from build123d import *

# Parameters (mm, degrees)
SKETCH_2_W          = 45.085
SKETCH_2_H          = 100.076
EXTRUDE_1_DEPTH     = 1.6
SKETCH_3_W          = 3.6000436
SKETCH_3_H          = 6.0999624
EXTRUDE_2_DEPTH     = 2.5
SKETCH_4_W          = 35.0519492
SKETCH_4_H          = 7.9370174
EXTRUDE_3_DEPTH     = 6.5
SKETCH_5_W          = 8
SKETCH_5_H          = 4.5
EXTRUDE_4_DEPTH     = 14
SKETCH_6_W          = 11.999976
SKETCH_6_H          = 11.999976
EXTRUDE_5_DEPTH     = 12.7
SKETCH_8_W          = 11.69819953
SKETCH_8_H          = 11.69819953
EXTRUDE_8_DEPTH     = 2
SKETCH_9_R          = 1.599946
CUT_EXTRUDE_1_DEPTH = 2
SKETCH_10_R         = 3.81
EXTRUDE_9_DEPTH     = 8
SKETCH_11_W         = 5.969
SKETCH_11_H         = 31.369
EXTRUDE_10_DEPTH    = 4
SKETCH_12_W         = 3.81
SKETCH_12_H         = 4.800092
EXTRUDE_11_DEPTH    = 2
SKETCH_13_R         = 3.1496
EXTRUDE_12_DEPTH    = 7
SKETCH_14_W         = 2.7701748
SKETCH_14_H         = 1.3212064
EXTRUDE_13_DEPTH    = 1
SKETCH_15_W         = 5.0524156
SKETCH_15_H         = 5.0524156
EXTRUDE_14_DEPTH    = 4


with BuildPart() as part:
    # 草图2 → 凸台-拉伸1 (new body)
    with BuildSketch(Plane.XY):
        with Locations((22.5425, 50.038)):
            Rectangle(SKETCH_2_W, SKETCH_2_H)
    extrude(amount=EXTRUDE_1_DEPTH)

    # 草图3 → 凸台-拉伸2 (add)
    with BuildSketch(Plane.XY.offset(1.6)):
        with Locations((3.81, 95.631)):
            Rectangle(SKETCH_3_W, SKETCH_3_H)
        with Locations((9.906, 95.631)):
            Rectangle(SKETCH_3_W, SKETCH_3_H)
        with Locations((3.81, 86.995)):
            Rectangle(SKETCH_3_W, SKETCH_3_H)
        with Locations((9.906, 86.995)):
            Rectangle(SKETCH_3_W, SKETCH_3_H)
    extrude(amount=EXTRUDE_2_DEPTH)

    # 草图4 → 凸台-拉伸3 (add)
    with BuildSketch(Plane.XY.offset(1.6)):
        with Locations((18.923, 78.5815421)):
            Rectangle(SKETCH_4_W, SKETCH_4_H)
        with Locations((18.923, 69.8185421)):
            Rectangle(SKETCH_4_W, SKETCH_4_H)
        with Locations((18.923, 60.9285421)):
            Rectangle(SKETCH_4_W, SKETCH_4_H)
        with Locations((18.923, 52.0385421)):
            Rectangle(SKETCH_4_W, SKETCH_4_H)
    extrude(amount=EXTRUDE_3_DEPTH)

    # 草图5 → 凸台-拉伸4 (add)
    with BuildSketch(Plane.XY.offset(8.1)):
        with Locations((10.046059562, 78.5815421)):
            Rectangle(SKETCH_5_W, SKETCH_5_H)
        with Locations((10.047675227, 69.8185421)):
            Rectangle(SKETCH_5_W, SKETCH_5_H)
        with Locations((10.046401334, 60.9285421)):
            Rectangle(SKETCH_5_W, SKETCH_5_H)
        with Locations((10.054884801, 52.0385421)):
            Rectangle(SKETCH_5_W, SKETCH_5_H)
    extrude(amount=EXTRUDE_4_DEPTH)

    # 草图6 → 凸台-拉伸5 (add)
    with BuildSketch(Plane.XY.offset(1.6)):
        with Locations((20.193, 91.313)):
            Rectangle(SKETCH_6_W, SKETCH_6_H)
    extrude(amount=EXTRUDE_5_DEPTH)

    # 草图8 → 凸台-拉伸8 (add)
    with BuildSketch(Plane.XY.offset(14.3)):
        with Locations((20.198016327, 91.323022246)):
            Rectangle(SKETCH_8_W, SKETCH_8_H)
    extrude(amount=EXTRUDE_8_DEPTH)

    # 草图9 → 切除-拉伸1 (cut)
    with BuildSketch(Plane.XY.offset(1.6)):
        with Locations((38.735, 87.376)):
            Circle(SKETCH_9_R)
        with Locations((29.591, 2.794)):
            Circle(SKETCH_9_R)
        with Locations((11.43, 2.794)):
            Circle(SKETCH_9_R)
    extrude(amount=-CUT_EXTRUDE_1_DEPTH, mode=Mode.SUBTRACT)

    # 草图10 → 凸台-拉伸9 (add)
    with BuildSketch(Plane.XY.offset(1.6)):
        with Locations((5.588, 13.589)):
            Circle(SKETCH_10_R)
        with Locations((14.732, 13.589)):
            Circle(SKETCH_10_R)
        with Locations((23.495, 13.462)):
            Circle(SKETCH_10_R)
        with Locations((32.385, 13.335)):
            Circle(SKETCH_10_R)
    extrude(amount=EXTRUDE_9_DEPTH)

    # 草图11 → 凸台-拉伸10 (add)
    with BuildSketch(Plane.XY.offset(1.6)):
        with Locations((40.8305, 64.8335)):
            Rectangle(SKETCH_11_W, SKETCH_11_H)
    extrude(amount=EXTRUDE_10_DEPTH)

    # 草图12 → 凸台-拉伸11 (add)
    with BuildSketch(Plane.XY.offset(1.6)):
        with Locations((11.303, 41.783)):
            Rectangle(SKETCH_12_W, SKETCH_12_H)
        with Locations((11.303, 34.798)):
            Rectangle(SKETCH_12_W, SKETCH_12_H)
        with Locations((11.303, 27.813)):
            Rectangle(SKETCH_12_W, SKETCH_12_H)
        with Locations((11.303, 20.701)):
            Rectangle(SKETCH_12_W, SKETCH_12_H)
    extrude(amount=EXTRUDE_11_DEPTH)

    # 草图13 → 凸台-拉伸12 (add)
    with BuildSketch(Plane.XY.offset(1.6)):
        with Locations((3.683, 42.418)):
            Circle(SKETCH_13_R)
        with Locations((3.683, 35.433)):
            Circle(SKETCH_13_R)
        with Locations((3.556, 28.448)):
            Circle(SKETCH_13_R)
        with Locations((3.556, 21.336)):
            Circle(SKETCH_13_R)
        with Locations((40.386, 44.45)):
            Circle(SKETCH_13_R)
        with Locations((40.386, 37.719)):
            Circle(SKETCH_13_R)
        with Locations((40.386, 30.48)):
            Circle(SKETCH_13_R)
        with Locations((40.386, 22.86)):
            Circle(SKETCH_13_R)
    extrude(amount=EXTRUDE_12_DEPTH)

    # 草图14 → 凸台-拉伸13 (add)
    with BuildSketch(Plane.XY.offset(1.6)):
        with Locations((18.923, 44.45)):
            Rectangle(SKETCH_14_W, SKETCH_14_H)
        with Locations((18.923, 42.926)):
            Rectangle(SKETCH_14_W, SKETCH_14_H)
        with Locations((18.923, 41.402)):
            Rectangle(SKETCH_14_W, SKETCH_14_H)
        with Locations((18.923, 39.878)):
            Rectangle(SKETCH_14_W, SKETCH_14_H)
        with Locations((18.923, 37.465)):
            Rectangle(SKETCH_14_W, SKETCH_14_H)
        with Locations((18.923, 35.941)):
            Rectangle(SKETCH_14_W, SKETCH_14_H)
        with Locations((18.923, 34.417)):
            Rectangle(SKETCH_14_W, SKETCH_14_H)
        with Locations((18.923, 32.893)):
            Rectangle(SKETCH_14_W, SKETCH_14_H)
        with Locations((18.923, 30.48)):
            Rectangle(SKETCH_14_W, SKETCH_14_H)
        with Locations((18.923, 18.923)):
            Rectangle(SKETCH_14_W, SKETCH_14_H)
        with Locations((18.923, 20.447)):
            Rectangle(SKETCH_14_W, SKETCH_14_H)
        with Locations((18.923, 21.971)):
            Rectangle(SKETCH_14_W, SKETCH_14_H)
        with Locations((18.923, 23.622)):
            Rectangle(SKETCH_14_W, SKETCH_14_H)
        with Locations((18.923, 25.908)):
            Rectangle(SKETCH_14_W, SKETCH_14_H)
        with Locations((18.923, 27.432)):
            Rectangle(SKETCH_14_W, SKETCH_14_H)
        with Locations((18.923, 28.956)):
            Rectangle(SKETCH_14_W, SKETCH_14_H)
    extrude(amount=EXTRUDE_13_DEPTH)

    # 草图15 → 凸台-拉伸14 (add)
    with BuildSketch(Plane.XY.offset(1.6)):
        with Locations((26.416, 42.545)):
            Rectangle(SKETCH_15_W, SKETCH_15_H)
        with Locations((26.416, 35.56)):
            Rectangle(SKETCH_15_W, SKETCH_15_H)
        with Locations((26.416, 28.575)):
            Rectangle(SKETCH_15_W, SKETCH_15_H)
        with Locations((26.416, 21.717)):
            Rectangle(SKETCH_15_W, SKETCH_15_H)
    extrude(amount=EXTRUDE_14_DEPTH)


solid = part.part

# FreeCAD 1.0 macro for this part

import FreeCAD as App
import Part
import Sketcher
from FreeCAD import Vector
Q = App.Units.Quantity

doc = App.newDocument("Part")
body = doc.addObject("PartDesign::Body", "Body")

sketch1 = body.newObject("Sketcher::SketchObject", "Sketch")
sketch1.AttachmentSupport = (doc.getObject("XY_Plane"), [""])
sketch1.MapMode = "FlatFace"
sketch1.addGeometry([
    Part.LineSegment(Vector(0, 100, 0), Vector(0, 0, 0)),
    Part.LineSegment(Vector(0, 0, 0), Vector(45, 0, 0)),
    Part.LineSegment(Vector(45, 0, 0), Vector(45, 100, 0)),
    Part.LineSegment(Vector(45, 100, 0), Vector(0, 100, 0)),
], False)
sketch1.addConstraint([
    Sketcher.Constraint("Coincident", 0, 2, 1, 1),
    Sketcher.Constraint("Coincident", 1, 2, 2, 1),
    Sketcher.Constraint("Coincident", 2, 2, 3, 1),
    Sketcher.Constraint("Coincident", 3, 2, 0, 1),
    Sketcher.Constraint("Vertical", 0),
    Sketcher.Constraint("Horizontal", 1),
    Sketcher.Constraint("Vertical", 2),
    Sketcher.Constraint("Horizontal", 3),
    Sketcher.Constraint("Coincident", 0, 2, -1, 1),
    Sketcher.Constraint("DistanceX", 1, 1, 1, 2, Q("45.085 mm")),
    Sketcher.Constraint("DistanceY", 0, 2, 0, 1, Q("100.076 mm")),
])
pad1 = body.newObject("PartDesign::Pad", "Pad")
pad1.Profile = sketch1
pad1.Length = 1.6

sketch2 = body.newObject("Sketcher::SketchObject", "Sketch001")
sketch2.AttachmentSupport = (doc.getObject("XY_Plane"), [""])
sketch2.MapMode = "FlatFace"
sketch2.AttachmentOffset = App.Placement(Vector(0, 0, 1.6), App.Rotation())
sketch2.addGeometry([
    Part.LineSegment(Vector(2, 98.7, 0), Vector(2, 92.6, 0)),
    Part.LineSegment(Vector(2, 92.6, 0), Vector(5.6, 92.6, 0)),
    Part.LineSegment(Vector(5.6, 92.6, 0), Vector(5.6, 98.7, 0)),
    Part.LineSegment(Vector(5.6, 98.7, 0), Vector(2, 98.7, 0)),
    Part.LineSegment(Vector(8.1, 98.7, 0), Vector(8.1, 92.6, 0)),
    Part.LineSegment(Vector(8.1, 92.6, 0), Vector(11.7, 92.6, 0)),
    Part.LineSegment(Vector(11.7, 92.6, 0), Vector(11.7, 98.7, 0)),
    Part.LineSegment(Vector(11.7, 98.7, 0), Vector(8.1, 98.7, 0)),
    Part.LineSegment(Vector(2, 90, 0), Vector(2, 83.9, 0)),
    Part.LineSegment(Vector(2, 83.9, 0), Vector(5.6, 83.9, 0)),
    Part.LineSegment(Vector(5.6, 83.9, 0), Vector(5.6, 90, 0)),
    Part.LineSegment(Vector(5.6, 90, 0), Vector(2, 90, 0)),
    Part.LineSegment(Vector(8.1, 90, 0), Vector(8.1, 83.9, 0)),
    Part.LineSegment(Vector(8.1, 83.9, 0), Vector(11.7, 83.9, 0)),
    Part.LineSegment(Vector(11.7, 83.9, 0), Vector(11.7, 90, 0)),
    Part.LineSegment(Vector(11.7, 90, 0), Vector(8.1, 90, 0)),
], False)
sketch2.addConstraint([
    Sketcher.Constraint("Coincident", 0, 2, 1, 1),
    Sketcher.Constraint("Coincident", 1, 2, 2, 1),
    Sketcher.Constraint("Coincident", 2, 2, 3, 1),
    Sketcher.Constraint("Coincident", 3, 2, 0, 1),
    Sketcher.Constraint("Coincident", 4, 2, 5, 1),
    Sketcher.Constraint("Coincident", 5, 2, 6, 1),
    Sketcher.Constraint("Coincident", 6, 2, 7, 1),
    Sketcher.Constraint("Coincident", 7, 2, 4, 1),
    Sketcher.Constraint("Coincident", 8, 2, 9, 1),
    Sketcher.Constraint("Coincident", 9, 2, 10, 1),
    Sketcher.Constraint("Coincident", 10, 2, 11, 1),
    Sketcher.Constraint("Coincident", 11, 2, 8, 1),
    Sketcher.Constraint("Coincident", 12, 2, 13, 1),
    Sketcher.Constraint("Coincident", 13, 2, 14, 1),
    Sketcher.Constraint("Coincident", 14, 2, 15, 1),
    Sketcher.Constraint("Coincident", 15, 2, 12, 1),
    Sketcher.Constraint("Vertical", 0),
    Sketcher.Constraint("Horizontal", 1),
    Sketcher.Constraint("Vertical", 2),
    Sketcher.Constraint("Horizontal", 3),
    Sketcher.Constraint("Vertical", 4),
    Sketcher.Constraint("Horizontal", 5),
    Sketcher.Constraint("Vertical", 6),
    Sketcher.Constraint("Horizontal", 7),
    Sketcher.Constraint("Vertical", 8),
    Sketcher.Constraint("Horizontal", 9),
    Sketcher.Constraint("Vertical", 10),
    Sketcher.Constraint("Horizontal", 11),
    Sketcher.Constraint("Vertical", 12),
    Sketcher.Constraint("Horizontal", 13),
    Sketcher.Constraint("Vertical", 14),
    Sketcher.Constraint("Horizontal", 15),
    Sketcher.Constraint("Horizontal", 1, 2, 4, 2),
    Sketcher.Constraint("Horizontal", 3, 2, 6, 2),
    Sketcher.Constraint("Horizontal", 9, 2, 12, 2),
    Sketcher.Constraint("Horizontal", 11, 2, 14, 2),
    Sketcher.Constraint("Vertical", 3, 2, 8, 2),
    Sketcher.Constraint("Vertical", 2, 2, 9, 2),
    Sketcher.Constraint("Vertical", 7, 2, 12, 2),
    Sketcher.Constraint("Vertical", 6, 2, 13, 2),
    Sketcher.Constraint("Equal", 3, 5),
    Sketcher.Constraint("Equal", 6, 8),
    Sketcher.Constraint("DistanceX", 0, 2, 4, 2, Q("6.096 mm")),
    Sketcher.Constraint("DistanceY", 8, 2, 0, 2, Q("8.636 mm")),
    Sketcher.Constraint("DistanceX", 1, 1, 1, 2, Q("3.600044 mm")),
    Sketcher.Constraint("DistanceY", 0, 2, 0, 1, Q("6.099962 mm")),
    Sketcher.Constraint("DistanceX", -1, 1, 0, 2, Q("2.009978 mm")),
    Sketcher.Constraint("DistanceY", -1, 1, 0, 2, Q("92.581019 mm")),
])
pad2 = body.newObject("PartDesign::Pad", "Pad001")
pad2.Profile = sketch2
pad2.Length = 2.5

sketch3 = body.newObject("Sketcher::SketchObject", "Sketch002")
sketch3.AttachmentSupport = (doc.getObject("XY_Plane"), [""])
sketch3.MapMode = "FlatFace"
sketch3.AttachmentOffset = App.Placement(Vector(0, 0, 1.6), App.Rotation())
sketch3.addGeometry([
    Part.LineSegment(Vector(1, 83, 0), Vector(1, 75, 0)),
    Part.LineSegment(Vector(1, 75, 0), Vector(36, 75, 0)),
    Part.LineSegment(Vector(36, 75, 0), Vector(36, 83, 0)),
    Part.LineSegment(Vector(36, 83, 0), Vector(1, 83, 0)),
    Part.LineSegment(Vector(1, 74, 0), Vector(1, 66, 0)),
    Part.LineSegment(Vector(1, 66, 0), Vector(36, 66, 0)),
    Part.LineSegment(Vector(36, 66, 0), Vector(36, 74, 0)),
    Part.LineSegment(Vector(36, 74, 0), Vector(1, 74, 0)),
    Part.LineSegment(Vector(1, 65, 0), Vector(1, 57, 0)),
    Part.LineSegment(Vector(1, 57, 0), Vector(36, 57, 0)),
    Part.LineSegment(Vector(36, 57, 0), Vector(36, 65, 0)),
    Part.LineSegment(Vector(36, 65, 0), Vector(1, 65, 0)),
    Part.LineSegment(Vector(1, 56, 0), Vector(1, 48, 0)),
    Part.LineSegment(Vector(1, 48, 0), Vector(36, 48, 0)),
    Part.LineSegment(Vector(36, 48, 0), Vector(36, 56, 0)),
    Part.LineSegment(Vector(36, 56, 0), Vector(1, 56, 0)),
], False)
sketch3.addConstraint([
    Sketcher.Constraint("Coincident", 0, 2, 1, 1),
    Sketcher.Constraint("Coincident", 1, 2, 2, 1),
    Sketcher.Constraint("Coincident", 2, 2, 3, 1),
    Sketcher.Constraint("Coincident", 3, 2, 0, 1),
    Sketcher.Constraint("Coincident", 4, 2, 5, 1),
    Sketcher.Constraint("Coincident", 5, 2, 6, 1),
    Sketcher.Constraint("Coincident", 6, 2, 7, 1),
    Sketcher.Constraint("Coincident", 7, 2, 4, 1),
    Sketcher.Constraint("Coincident", 8, 2, 9, 1),
    Sketcher.Constraint("Coincident", 9, 2, 10, 1),
    Sketcher.Constraint("Coincident", 10, 2, 11, 1),
    Sketcher.Constraint("Coincident", 11, 2, 8, 1),
    Sketcher.Constraint("Coincident", 12, 2, 13, 1),
    Sketcher.Constraint("Coincident", 13, 2, 14, 1),
    Sketcher.Constraint("Coincident", 14, 2, 15, 1),
    Sketcher.Constraint("Coincident", 15, 2, 12, 1),
    Sketcher.Constraint("Vertical", 0),
    Sketcher.Constraint("Horizontal", 1),
    Sketcher.Constraint("Vertical", 2),
    Sketcher.Constraint("Horizontal", 3),
    Sketcher.Constraint("Vertical", 4),
    Sketcher.Constraint("Horizontal", 5),
    Sketcher.Constraint("Vertical", 6),
    Sketcher.Constraint("Horizontal", 7),
    Sketcher.Constraint("Vertical", 8),
    Sketcher.Constraint("Horizontal", 9),
    Sketcher.Constraint("Vertical", 10),
    Sketcher.Constraint("Horizontal", 11),
    Sketcher.Constraint("Vertical", 12),
    Sketcher.Constraint("Horizontal", 13),
    Sketcher.Constraint("Vertical", 14),
    Sketcher.Constraint("Horizontal", 15),
    Sketcher.Constraint("Vertical", 3, 2, 4, 2),
    Sketcher.Constraint("Vertical", 2, 2, 5, 2),
    Sketcher.Constraint("Vertical", 7, 2, 8, 2),
    Sketcher.Constraint("Vertical", 6, 2, 9, 2),
    Sketcher.Constraint("Vertical", 11, 2, 12, 2),
    Sketcher.Constraint("Vertical", 10, 2, 13, 2),
    Sketcher.Constraint("Equal", 2, 4),
    Sketcher.Constraint("Equal", 6, 8),
    Sketcher.Constraint("Equal", 10, 12),
    Sketcher.Constraint("DistanceY", 8, 2, 4, 2, Q("8.89 mm")),
    Sketcher.Constraint("DistanceY", 12, 2, 8, 2, Q("8.89 mm")),
    Sketcher.Constraint("DistanceY", 4, 2, 0, 2, Q("8.763 mm")),
    Sketcher.Constraint("DistanceX", 1, 1, 1, 2, Q("35.051949 mm")),
    Sketcher.Constraint("DistanceY", 0, 2, 0, 1, Q("7.937017 mm")),
    Sketcher.Constraint("DistanceY", -1, 1, 2, 2, Q("82.550051 mm")),
    Sketcher.Constraint("DistanceX", -1, 1, 0, 2, Q("1.397025 mm")),
])
pad3 = body.newObject("PartDesign::Pad", "Pad002")
pad3.Profile = sketch3
pad3.Length = 6.5

sketch4 = body.newObject("Sketcher::SketchObject", "Sketch003")
sketch4.AttachmentSupport = (doc.getObject("XY_Plane"), [""])
sketch4.MapMode = "FlatFace"
sketch4.AttachmentOffset = App.Placement(Vector(0, 0, 8.1), App.Rotation())
sketch4.addGeometry([
    Part.LineSegment(Vector(6, 80.8, 0), Vector(6, 76.3, 0)),
    Part.LineSegment(Vector(6, 76.3, 0), Vector(14, 76.3, 0)),
    Part.LineSegment(Vector(14, 76.3, 0), Vector(14, 80.8, 0)),
    Part.LineSegment(Vector(14, 80.8, 0), Vector(6, 80.8, 0)),
    Part.LineSegment(Vector(6, 72.1, 0), Vector(6, 67.6, 0)),
    Part.LineSegment(Vector(6, 67.6, 0), Vector(14, 67.6, 0)),
    Part.LineSegment(Vector(14, 67.6, 0), Vector(14, 72.1, 0)),
    Part.LineSegment(Vector(14, 72.1, 0), Vector(6, 72.1, 0)),
    Part.LineSegment(Vector(6, 63.2, 0), Vector(6, 58.7, 0)),
    Part.LineSegment(Vector(6, 58.7, 0), Vector(14, 58.7, 0)),
    Part.LineSegment(Vector(14, 58.7, 0), Vector(14, 63.2, 0)),
    Part.LineSegment(Vector(14, 63.2, 0), Vector(6, 63.2, 0)),
    Part.LineSegment(Vector(6.1, 54.3, 0), Vector(6.1, 49.8, 0)),
    Part.LineSegment(Vector(6.1, 49.8, 0), Vector(14.1, 49.8, 0)),
    Part.LineSegment(Vector(14.1, 49.8, 0), Vector(14.1, 54.3, 0)),
    Part.LineSegment(Vector(14.1, 54.3, 0), Vector(6.1, 54.3, 0)),
], False)
sketch4.addConstraint([
    Sketcher.Constraint("Coincident", 0, 2, 1, 1),
    Sketcher.Constraint("Coincident", 1, 2, 2, 1),
    Sketcher.Constraint("Coincident", 2, 2, 3, 1),
    Sketcher.Constraint("Coincident", 3, 2, 0, 1),
    Sketcher.Constraint("Coincident", 4, 2, 5, 1),
    Sketcher.Constraint("Coincident", 5, 2, 6, 1),
    Sketcher.Constraint("Coincident", 6, 2, 7, 1),
    Sketcher.Constraint("Coincident", 7, 2, 4, 1),
    Sketcher.Constraint("Coincident", 8, 2, 9, 1),
    Sketcher.Constraint("Coincident", 9, 2, 10, 1),
    Sketcher.Constraint("Coincident", 10, 2, 11, 1),
    Sketcher.Constraint("Coincident", 11, 2, 8, 1),
    Sketcher.Constraint("Coincident", 12, 2, 13, 1),
    Sketcher.Constraint("Coincident", 13, 2, 14, 1),
    Sketcher.Constraint("Coincident", 14, 2, 15, 1),
    Sketcher.Constraint("Coincident", 15, 2, 12, 1),
    Sketcher.Constraint("Vertical", 0),
    Sketcher.Constraint("Horizontal", 1),
    Sketcher.Constraint("Vertical", 2),
    Sketcher.Constraint("Horizontal", 3),
    Sketcher.Constraint("Vertical", 4),
    Sketcher.Constraint("Horizontal", 5),
    Sketcher.Constraint("Vertical", 6),
    Sketcher.Constraint("Horizontal", 7),
    Sketcher.Constraint("Vertical", 8),
    Sketcher.Constraint("Horizontal", 9),
    Sketcher.Constraint("Vertical", 10),
    Sketcher.Constraint("Horizontal", 11),
    Sketcher.Constraint("Vertical", 12),
    Sketcher.Constraint("Horizontal", 13),
    Sketcher.Constraint("Vertical", 14),
    Sketcher.Constraint("Horizontal", 15),
    Sketcher.Constraint("Equal", 3, 5),
    Sketcher.Constraint("Equal", 7, 9),
    Sketcher.Constraint("Equal", 11, 13),
    Sketcher.Constraint("Equal", 2, 4),
    Sketcher.Constraint("Equal", 6, 8),
    Sketcher.Constraint("Equal", 10, 12),
    Sketcher.Constraint("DistanceX", 1, 1, 1, 2, Q("8 mm")),
    Sketcher.Constraint("DistanceY", 0, 2, 0, 1, Q("4.5 mm")),
    Sketcher.Constraint("DistanceY", 8, 2, 4, 2, Q("8.89 mm")),
    Sketcher.Constraint("DistanceY", 12, 2, 8, 2, Q("8.89 mm")),
    Sketcher.Constraint("DistanceY", 4, 2, 0, 2, Q("8.763 mm")),
    Sketcher.Constraint("DistanceX", -1, 1, 8, 2, Q("6.046401 mm")),
    Sketcher.Constraint("DistanceX", -1, 1, 0, 2, Q("6.04606 mm")),
    Sketcher.Constraint("DistanceX", 4, 2, 12, 2, Q("0.00721 mm")),
    Sketcher.Constraint("DistanceY", -1, 1, 0, 2, Q("76.331542 mm")),
    Sketcher.Constraint("DistanceX", -1, 1, 4, 2, Q("6.047675 mm")),
])
pad4 = body.newObject("PartDesign::Pad", "Pad003")
pad4.Profile = sketch4
pad4.Length = 14

sketch5 = body.newObject("Sketcher::SketchObject", "Sketch004")
sketch5.AttachmentSupport = (doc.getObject("XY_Plane"), [""])
sketch5.MapMode = "FlatFace"
sketch5.AttachmentOffset = App.Placement(Vector(0, 0, 1.6), App.Rotation())
sketch5.addGeometry([
    Part.LineSegment(Vector(14, 97, 0), Vector(14, 85, 0)),
    Part.LineSegment(Vector(14, 85, 0), Vector(26, 85, 0)),
    Part.LineSegment(Vector(26, 85, 0), Vector(26, 97, 0)),
    Part.LineSegment(Vector(26, 97, 0), Vector(14, 97, 0)),
], False)
sketch5.addConstraint([
    Sketcher.Constraint("Coincident", 0, 2, 1, 1),
    Sketcher.Constraint("Coincident", 1, 2, 2, 1),
    Sketcher.Constraint("Coincident", 2, 2, 3, 1),
    Sketcher.Constraint("Coincident", 3, 2, 0, 1),
    Sketcher.Constraint("Vertical", 0),
    Sketcher.Constraint("Horizontal", 1),
    Sketcher.Constraint("Vertical", 2),
    Sketcher.Constraint("Horizontal", 3),
    Sketcher.Constraint("Equal", 3, 0),
    Sketcher.Constraint("DistanceX", 1, 1, 1, 2, Q("11.999976 mm")),
    Sketcher.Constraint("DistanceY", -1, 1, 0, 2, Q("85.313012 mm")),
    Sketcher.Constraint("DistanceX", -1, 1, 0, 2, Q("14.193012 mm")),
])
pad5 = body.newObject("PartDesign::Pad", "Pad004")
pad5.Profile = sketch5
pad5.Length = 12.7

sketch6 = body.newObject("Sketcher::SketchObject", "Sketch005")
sketch6.AttachmentSupport = (doc.getObject("XY_Plane"), [""])
sketch6.MapMode = "FlatFace"
sketch6.AttachmentOffset = App.Placement(Vector(0, 0, 14.3), App.Rotation())
sketch6.addGeometry([
    Part.LineSegment(Vector(14, 97, 0), Vector(14, 85, 0)),
    Part.LineSegment(Vector(14, 85, 0), Vector(26, 85, 0)),
    Part.LineSegment(Vector(26, 85, 0), Vector(26, 97, 0)),
    Part.LineSegment(Vector(26, 97, 0), Vector(14, 97, 0)),
], False)
sketch6.addConstraint([
    Sketcher.Constraint("Coincident", 0, 2, 1, 1),
    Sketcher.Constraint("Coincident", 1, 2, 2, 1),
    Sketcher.Constraint("Coincident", 2, 2, 3, 1),
    Sketcher.Constraint("Coincident", 3, 2, 0, 1),
    Sketcher.Constraint("Vertical", 0),
    Sketcher.Constraint("Horizontal", 1),
    Sketcher.Constraint("Vertical", 2),
    Sketcher.Constraint("Horizontal", 3),
    Sketcher.Constraint("Equal", 3, 0),
    Sketcher.Constraint("DistanceX", 1, 1, 1, 2, Q("11.6982 mm")),
    Sketcher.Constraint("DistanceX", -1, 1, 0, 2, Q("14.348917 mm")),
    Sketcher.Constraint("DistanceY", -1, 1, 0, 2, Q("85.473922 mm")),
])
pad6 = body.newObject("PartDesign::Pad", "Pad005")
pad6.Profile = sketch6
pad6.Length = 2

sketch7 = body.newObject("Sketcher::SketchObject", "Sketch006")
sketch7.AttachmentSupport = (doc.getObject("XY_Plane"), [""])
sketch7.MapMode = "FlatFace"
sketch7.AttachmentOffset = App.Placement(Vector(0, 0, 1.6), App.Rotation())
sketch7.addGeometry([
    Part.Circle(Vector(38.7, 87.4, 0), Vector(0, 0, 1), 1.6),
    Part.Circle(Vector(29.6, 2.8, 0), Vector(0, 0, 1), 1.6),
    Part.Circle(Vector(11.4, 2.8, 0), Vector(0, 0, 1), 1.6),
], False)
sketch7.addConstraint([
    Sketcher.Constraint("Equal", 0, 1),
    Sketcher.Constraint("Equal", 1, 2),
    Sketcher.Constraint("Horizontal", 1, 3, 2, 3),
    Sketcher.Constraint("DistanceX", -1, 1, 2, 3, Q("11.43 mm")),
    Sketcher.Constraint("Diameter", 0, Q("3.199892 mm")),
    Sketcher.Constraint("DistanceX", -1, 1, 0, 3, Q("38.735 mm")),
    Sketcher.Constraint("DistanceY", -1, 1, 0, 3, Q("87.376 mm")),
    Sketcher.Constraint("DistanceX", -1, 1, 1, 3, Q("29.591 mm")),
    Sketcher.Constraint("DistanceY", -1, 1, 1, 3, Q("2.794 mm")),
])
pocket1 = body.newObject("PartDesign::Pocket", "Pocket")
pocket1.Profile = sketch7
pocket1.Length = 2

sketch8 = body.newObject("Sketcher::SketchObject", "Sketch007")
sketch8.AttachmentSupport = (doc.getObject("XY_Plane"), [""])
sketch8.MapMode = "FlatFace"
sketch8.AttachmentOffset = App.Placement(Vector(0, 0, 1.6), App.Rotation())
sketch8.addGeometry([
    Part.Circle(Vector(5.6, 13.6, 0), Vector(0, 0, 1), 3.8),
    Part.Circle(Vector(14.7, 13.6, 0), Vector(0, 0, 1), 3.8),
    Part.Circle(Vector(23.5, 13.5, 0), Vector(0, 0, 1), 3.8),
    Part.Circle(Vector(32.4, 13.3, 0), Vector(0, 0, 1), 3.8),
], False)
sketch8.addConstraint([
    Sketcher.Constraint("Equal", 0, 1),
    Sketcher.Constraint("Equal", 1, 2),
    Sketcher.Constraint("Equal", 2, 3),
    Sketcher.Constraint("Horizontal", 0, 3, 1, 3),
    Sketcher.Constraint("Diameter", 0, Q("7.62 mm")),
    Sketcher.Constraint("DistanceX", 2, 3, 3, 3, Q("8.89 mm")),
    Sketcher.Constraint("DistanceX", -1, 1, 0, 3, Q("5.588 mm")),
    Sketcher.Constraint("DistanceY", -1, 1, 0, 3, Q("13.589 mm")),
    Sketcher.Constraint("DistanceX", -1, 1, 1, 3, Q("14.732 mm")),
    Sketcher.Constraint("DistanceX", -1, 1, 2, 3, Q("23.495 mm")),
    Sketcher.Constraint("DistanceY", -1, 1, 2, 3, Q("13.462 mm")),
    Sketcher.Constraint("DistanceY", -1, 1, 3, 3, Q("13.335 mm")),
])
pad7 = body.newObject("PartDesign::Pad", "Pad006")
pad7.Profile = sketch8
pad7.Length = 8

sketch9 = body.newObject("Sketcher::SketchObject", "Sketch008")
sketch9.AttachmentSupport = (doc.getObject("XY_Plane"), [""])
sketch9.MapMode = "FlatFace"
sketch9.AttachmentOffset = App.Placement(Vector(0, 0, 1.6), App.Rotation())
sketch9.addGeometry([
    Part.LineSegment(Vector(38, 81, 0), Vector(38, 49, 0)),
    Part.LineSegment(Vector(38, 49, 0), Vector(44, 49, 0)),
    Part.LineSegment(Vector(44, 49, 0), Vector(44, 81, 0)),
    Part.LineSegment(Vector(44, 81, 0), Vector(38, 81, 0)),
], False)
sketch9.addConstraint([
    Sketcher.Constraint("Coincident", 0, 2, 1, 1),
    Sketcher.Constraint("Coincident", 1, 2, 2, 1),
    Sketcher.Constraint("Coincident", 2, 2, 3, 1),
    Sketcher.Constraint("Coincident", 3, 2, 0, 1),
    Sketcher.Constraint("Vertical", 0),
    Sketcher.Constraint("Horizontal", 1),
    Sketcher.Constraint("Vertical", 2),
    Sketcher.Constraint("Horizontal", 3),
    Sketcher.Constraint("DistanceX", 1, 1, 1, 2, Q("5.969 mm")),
    Sketcher.Constraint("DistanceY", 0, 2, 0, 1, Q("31.369 mm")),
    Sketcher.Constraint("DistanceX", -1, 1, 0, 2, Q("37.846 mm")),
    Sketcher.Constraint("DistanceY", -1, 1, 0, 2, Q("49.149 mm")),
])
pad8 = body.newObject("PartDesign::Pad", "Pad007")
pad8.Profile = sketch9
pad8.Length = 4

sketch10 = body.newObject("Sketcher::SketchObject", "Sketch009")
sketch10.AttachmentSupport = (doc.getObject("XY_Plane"), [""])
sketch10.MapMode = "FlatFace"
sketch10.AttachmentOffset = App.Placement(Vector(0, 0, 1.6), App.Rotation())
sketch10.addGeometry([
    Part.LineSegment(Vector(9.4, 44.2, 0), Vector(9.4, 39.4, 0)),
    Part.LineSegment(Vector(9.4, 39.4, 0), Vector(13.2, 39.4, 0)),
    Part.LineSegment(Vector(13.2, 39.4, 0), Vector(13.2, 44.2, 0)),
    Part.LineSegment(Vector(13.2, 44.2, 0), Vector(9.4, 44.2, 0)),
    Part.LineSegment(Vector(9.4, 37.2, 0), Vector(9.4, 32.4, 0)),
    Part.LineSegment(Vector(9.4, 32.4, 0), Vector(13.2, 32.4, 0)),
    Part.LineSegment(Vector(13.2, 32.4, 0), Vector(13.2, 37.2, 0)),
    Part.LineSegment(Vector(13.2, 37.2, 0), Vector(9.4, 37.2, 0)),
    Part.LineSegment(Vector(9.4, 30.2, 0), Vector(9.4, 25.4, 0)),
    Part.LineSegment(Vector(9.4, 25.4, 0), Vector(13.2, 25.4, 0)),
    Part.LineSegment(Vector(13.2, 25.4, 0), Vector(13.2, 30.2, 0)),
    Part.LineSegment(Vector(13.2, 30.2, 0), Vector(9.4, 30.2, 0)),
    Part.LineSegment(Vector(9.4, 23.1, 0), Vector(9.4, 18.3, 0)),
    Part.LineSegment(Vector(9.4, 18.3, 0), Vector(13.2, 18.3, 0)),
    Part.LineSegment(Vector(13.2, 18.3, 0), Vector(13.2, 23.1, 0)),
    Part.LineSegment(Vector(13.2, 23.1, 0), Vector(9.4, 23.1, 0)),
], False)
sketch10.addConstraint([
    Sketcher.Constraint("Coincident", 0, 2, 1, 1),
    Sketcher.Constraint("Coincident", 1, 2, 2, 1),
    Sketcher.Constraint("Coincident", 2, 2, 3, 1),
    Sketcher.Constraint("Coincident", 3, 2, 0, 1),
    Sketcher.Constraint("Coincident", 4, 2, 5, 1),
    Sketcher.Constraint("Coincident", 5, 2, 6, 1),
    Sketcher.Constraint("Coincident", 6, 2, 7, 1),
    Sketcher.Constraint("Coincident", 7, 2, 4, 1),
    Sketcher.Constraint("Coincident", 8, 2, 9, 1),
    Sketcher.Constraint("Coincident", 9, 2, 10, 1),
    Sketcher.Constraint("Coincident", 10, 2, 11, 1),
    Sketcher.Constraint("Coincident", 11, 2, 8, 1),
    Sketcher.Constraint("Coincident", 12, 2, 13, 1),
    Sketcher.Constraint("Coincident", 13, 2, 14, 1),
    Sketcher.Constraint("Coincident", 14, 2, 15, 1),
    Sketcher.Constraint("Coincident", 15, 2, 12, 1),
    Sketcher.Constraint("Vertical", 0),
    Sketcher.Constraint("Horizontal", 1),
    Sketcher.Constraint("Vertical", 2),
    Sketcher.Constraint("Horizontal", 3),
    Sketcher.Constraint("Vertical", 4),
    Sketcher.Constraint("Horizontal", 5),
    Sketcher.Constraint("Vertical", 6),
    Sketcher.Constraint("Horizontal", 7),
    Sketcher.Constraint("Vertical", 8),
    Sketcher.Constraint("Horizontal", 9),
    Sketcher.Constraint("Vertical", 10),
    Sketcher.Constraint("Horizontal", 11),
    Sketcher.Constraint("Vertical", 12),
    Sketcher.Constraint("Horizontal", 13),
    Sketcher.Constraint("Vertical", 14),
    Sketcher.Constraint("Horizontal", 15),
    Sketcher.Constraint("Vertical", 3, 2, 4, 2),
    Sketcher.Constraint("Vertical", 2, 2, 5, 2),
    Sketcher.Constraint("Vertical", 7, 2, 8, 2),
    Sketcher.Constraint("Vertical", 6, 2, 9, 2),
    Sketcher.Constraint("Vertical", 11, 2, 12, 2),
    Sketcher.Constraint("Vertical", 10, 2, 13, 2),
    Sketcher.Constraint("Equal", 2, 4),
    Sketcher.Constraint("Equal", 6, 8),
    Sketcher.Constraint("Equal", 10, 12),
    Sketcher.Constraint("DistanceX", 1, 1, 1, 2, Q("3.81 mm")),
    Sketcher.Constraint("DistanceY", 8, 2, 0, 2, Q("13.97 mm")),
    Sketcher.Constraint("DistanceX", -1, 1, 0, 2, Q("9.398 mm")),
    Sketcher.Constraint("DistanceY", 4, 2, 0, 2, Q("6.985 mm")),
    Sketcher.Constraint("DistanceY", 12, 2, 8, 2, Q("7.112 mm")),
    Sketcher.Constraint("DistanceY", 0, 2, 0, 1, Q("4.800092 mm")),
    Sketcher.Constraint("DistanceY", -1, 1, 0, 2, Q("39.382954 mm")),
])
pad9 = body.newObject("PartDesign::Pad", "Pad008")
pad9.Profile = sketch10
pad9.Length = 2

sketch11 = body.newObject("Sketcher::SketchObject", "Sketch010")
sketch11.AttachmentSupport = (doc.getObject("XY_Plane"), [""])
sketch11.MapMode = "FlatFace"
sketch11.AttachmentOffset = App.Placement(Vector(0, 0, 1.6), App.Rotation())
sketch11.addGeometry([
    Part.Circle(Vector(3.7, 42.4, 0), Vector(0, 0, 1), 3.1),
    Part.Circle(Vector(3.7, 35.4, 0), Vector(0, 0, 1), 3.1),
    Part.Circle(Vector(3.6, 28.4, 0), Vector(0, 0, 1), 3.1),
    Part.Circle(Vector(3.6, 21.3, 0), Vector(0, 0, 1), 3.1),
    Part.Circle(Vector(40.4, 44.5, 0), Vector(0, 0, 1), 3.1),
    Part.Circle(Vector(40.4, 37.7, 0), Vector(0, 0, 1), 3.1),
    Part.Circle(Vector(40.4, 30.5, 0), Vector(0, 0, 1), 3.1),
    Part.Circle(Vector(40.4, 22.9, 0), Vector(0, 0, 1), 3.1),
], False)
sketch11.addConstraint([
    Sketcher.Constraint("Equal", 0, 1),
    Sketcher.Constraint("Equal", 1, 2),
    Sketcher.Constraint("Equal", 2, 3),
    Sketcher.Constraint("Equal", 3, 4),
    Sketcher.Constraint("Equal", 4, 5),
    Sketcher.Constraint("Equal", 5, 6),
    Sketcher.Constraint("Equal", 6, 7),
    Sketcher.Constraint("Vertical", 0, 3, 1, 3),
    Sketcher.Constraint("Vertical", 2, 3, 3, 3),
    Sketcher.Constraint("Vertical", 4, 3, 5, 3),
    Sketcher.Constraint("Vertical", 5, 3, 6, 3),
    Sketcher.Constraint("Vertical", 6, 3, 7, 3),
    Sketcher.Constraint("Diameter", 0, Q("6.2992 mm")),
    Sketcher.Constraint("DistanceY", -1, 1, 4, 3, Q("44.45 mm")),
    Sketcher.Constraint("DistanceY", -1, 1, 6, 3, Q("30.48 mm")),
    Sketcher.Constraint("DistanceY", -1, 1, 7, 3, Q("22.86 mm")),
    Sketcher.Constraint("DistanceY", 2, 3, 0, 3, Q("13.97 mm")),
    Sketcher.Constraint("DistanceX", 2, 3, 4, 3, Q("36.83 mm")),
    Sketcher.Constraint("DistanceX", -1, 1, 0, 3, Q("3.683 mm")),
    Sketcher.Constraint("DistanceY", -1, 1, 0, 3, Q("42.418 mm")),
    Sketcher.Constraint("DistanceY", -1, 1, 1, 3, Q("35.433 mm")),
    Sketcher.Constraint("DistanceX", -1, 1, 2, 3, Q("3.556 mm")),
    Sketcher.Constraint("DistanceY", -1, 1, 3, 3, Q("21.336 mm")),
    Sketcher.Constraint("DistanceY", -1, 1, 5, 3, Q("37.719 mm")),
])
pad10 = body.newObject("PartDesign::Pad", "Pad009")
pad10.Profile = sketch11
pad10.Length = 7

sketch12 = body.newObject("Sketcher::SketchObject", "Sketch011")
sketch12.AttachmentSupport = (doc.getObject("XY_Plane"), [""])
sketch12.MapMode = "FlatFace"
sketch12.AttachmentOffset = App.Placement(Vector(0, 0, 1.6), App.Rotation())
sketch12.addGeometry([
    Part.LineSegment(Vector(17.5, 45.1, 0), Vector(17.5, 43.8, 0)),
    Part.LineSegment(Vector(17.5, 43.8, 0), Vector(20.3, 43.8, 0)),
    Part.LineSegment(Vector(20.3, 43.8, 0), Vector(20.3, 45.1, 0)),
    Part.LineSegment(Vector(20.3, 45.1, 0), Vector(17.5, 45.1, 0)),
    Part.LineSegment(Vector(17.5, 43.6, 0), Vector(17.5, 42.3, 0)),
    Part.LineSegment(Vector(17.5, 42.3, 0), Vector(20.3, 42.3, 0)),
    Part.LineSegment(Vector(20.3, 42.3, 0), Vector(20.3, 43.6, 0)),
    Part.LineSegment(Vector(20.3, 43.6, 0), Vector(17.5, 43.6, 0)),
    Part.LineSegment(Vector(17.5, 42.1, 0), Vector(17.5, 40.7, 0)),
    Part.LineSegment(Vector(17.5, 40.7, 0), Vector(20.3, 40.7, 0)),
    Part.LineSegment(Vector(20.3, 40.7, 0), Vector(20.3, 42.1, 0)),
    Part.LineSegment(Vector(20.3, 42.1, 0), Vector(17.5, 42.1, 0)),
    Part.LineSegment(Vector(17.5, 40.5, 0), Vector(17.5, 39.2, 0)),
    Part.LineSegment(Vector(17.5, 39.2, 0), Vector(20.3, 39.2, 0)),
    Part.LineSegment(Vector(20.3, 39.2, 0), Vector(20.3, 40.5, 0)),
    Part.LineSegment(Vector(20.3, 40.5, 0), Vector(17.5, 40.5, 0)),
    Part.LineSegment(Vector(17.5, 38.1, 0), Vector(17.5, 36.8, 0)),
    Part.LineSegment(Vector(17.5, 36.8, 0), Vector(20.3, 36.8, 0)),
    Part.LineSegment(Vector(20.3, 36.8, 0), Vector(20.3, 38.1, 0)),
    Part.LineSegment(Vector(20.3, 38.1, 0), Vector(17.5, 38.1, 0)),
    Part.LineSegment(Vector(17.5, 36.6, 0), Vector(17.5, 35.3, 0)),
    Part.LineSegment(Vector(17.5, 35.3, 0), Vector(20.3, 35.3, 0)),
    Part.LineSegment(Vector(20.3, 35.3, 0), Vector(20.3, 36.6, 0)),
    Part.LineSegment(Vector(20.3, 36.6, 0), Vector(17.5, 36.6, 0)),
    Part.LineSegment(Vector(17.5, 35.1, 0), Vector(17.5, 33.8, 0)),
    Part.LineSegment(Vector(17.5, 33.8, 0), Vector(20.3, 33.8, 0)),
    Part.LineSegment(Vector(20.3, 33.8, 0), Vector(20.3, 35.1, 0)),
    Part.LineSegment(Vector(20.3, 35.1, 0), Vector(17.5, 35.1, 0)),
    Part.LineSegment(Vector(17.5, 33.6, 0), Vector(17.5, 32.2, 0)),
    Part.LineSegment(Vector(17.5, 32.2, 0), Vector(20.3, 32.2, 0)),
    Part.LineSegment(Vector(20.3, 32.2, 0), Vector(20.3, 33.6, 0)),
    Part.LineSegment(Vector(20.3, 33.6, 0), Vector(17.5, 33.6, 0)),
    Part.LineSegment(Vector(17.5, 31.1, 0), Vector(17.5, 29.8, 0)),
    Part.LineSegment(Vector(17.5, 29.8, 0), Vector(20.3, 29.8, 0)),
    Part.LineSegment(Vector(20.3, 29.8, 0), Vector(20.3, 31.1, 0)),
    Part.LineSegment(Vector(20.3, 31.1, 0), Vector(17.5, 31.1, 0)),
    Part.LineSegment(Vector(17.5, 19.6, 0), Vector(17.5, 18.3, 0)),
    Part.LineSegment(Vector(17.5, 18.3, 0), Vector(20.3, 18.3, 0)),
    Part.LineSegment(Vector(20.3, 18.3, 0), Vector(20.3, 19.6, 0)),
    Part.LineSegment(Vector(20.3, 19.6, 0), Vector(17.5, 19.6, 0)),
    Part.LineSegment(Vector(17.5, 21.1, 0), Vector(17.5, 19.8, 0)),
    Part.LineSegment(Vector(17.5, 19.8, 0), Vector(20.3, 19.8, 0)),
    Part.LineSegment(Vector(20.3, 19.8, 0), Vector(20.3, 21.1, 0)),
    Part.LineSegment(Vector(20.3, 21.1, 0), Vector(17.5, 21.1, 0)),
    Part.LineSegment(Vector(17.5, 22.6, 0), Vector(17.5, 21.3, 0)),
    Part.LineSegment(Vector(17.5, 21.3, 0), Vector(20.3, 21.3, 0)),
    Part.LineSegment(Vector(20.3, 21.3, 0), Vector(20.3, 22.6, 0)),
    Part.LineSegment(Vector(20.3, 22.6, 0), Vector(17.5, 22.6, 0)),
    Part.LineSegment(Vector(17.5, 24.3, 0), Vector(17.5, 23, 0)),
    Part.LineSegment(Vector(17.5, 23, 0), Vector(20.3, 23, 0)),
    Part.LineSegment(Vector(20.3, 23, 0), Vector(20.3, 24.3, 0)),
    Part.LineSegment(Vector(20.3, 24.3, 0), Vector(17.5, 24.3, 0)),
    Part.LineSegment(Vector(17.5, 26.6, 0), Vector(17.5, 25.2, 0)),
    Part.LineSegment(Vector(17.5, 25.2, 0), Vector(20.3, 25.2, 0)),
    Part.LineSegment(Vector(20.3, 25.2, 0), Vector(20.3, 26.6, 0)),
    Part.LineSegment(Vector(20.3, 26.6, 0), Vector(17.5, 26.6, 0)),
    Part.LineSegment(Vector(17.5, 28.1, 0), Vector(17.5, 26.8, 0)),
    Part.LineSegment(Vector(17.5, 26.8, 0), Vector(20.3, 26.8, 0)),
    Part.LineSegment(Vector(20.3, 26.8, 0), Vector(20.3, 28.1, 0)),
    Part.LineSegment(Vector(20.3, 28.1, 0), Vector(17.5, 28.1, 0)),
    Part.LineSegment(Vector(17.5, 29.6, 0), Vector(17.5, 28.3, 0)),
    Part.LineSegment(Vector(17.5, 28.3, 0), Vector(20.3, 28.3, 0)),
    Part.LineSegment(Vector(20.3, 28.3, 0), Vector(20.3, 29.6, 0)),
    Part.LineSegment(Vector(20.3, 29.6, 0), Vector(17.5, 29.6, 0)),
], False)
sketch12.addConstraint([
    Sketcher.Constraint("Coincident", 0, 2, 1, 1),
    Sketcher.Constraint("Coincident", 1, 2, 2, 1),
    Sketcher.Constraint("Coincident", 2, 2, 3, 1),
    Sketcher.Constraint("Coincident", 3, 2, 0, 1),
    Sketcher.Constraint("Coincident", 4, 2, 5, 1),
    Sketcher.Constraint("Coincident", 5, 2, 6, 1),
    Sketcher.Constraint("Coincident", 6, 2, 7, 1),
    Sketcher.Constraint("Coincident", 7, 2, 4, 1),
    Sketcher.Constraint("Coincident", 8, 2, 9, 1),
    Sketcher.Constraint("Coincident", 9, 2, 10, 1),
    Sketcher.Constraint("Coincident", 10, 2, 11, 1),
    Sketcher.Constraint("Coincident", 11, 2, 8, 1),
    Sketcher.Constraint("Coincident", 12, 2, 13, 1),
    Sketcher.Constraint("Coincident", 13, 2, 14, 1),
    Sketcher.Constraint("Coincident", 14, 2, 15, 1),
    Sketcher.Constraint("Coincident", 15, 2, 12, 1),
    Sketcher.Constraint("Coincident", 16, 2, 17, 1),
    Sketcher.Constraint("Coincident", 17, 2, 18, 1),
    Sketcher.Constraint("Coincident", 18, 2, 19, 1),
    Sketcher.Constraint("Coincident", 19, 2, 16, 1),
    Sketcher.Constraint("Coincident", 20, 2, 21, 1),
    Sketcher.Constraint("Coincident", 21, 2, 22, 1),
    Sketcher.Constraint("Coincident", 22, 2, 23, 1),
    Sketcher.Constraint("Coincident", 23, 2, 20, 1),
    Sketcher.Constraint("Coincident", 24, 2, 25, 1),
    Sketcher.Constraint("Coincident", 25, 2, 26, 1),
    Sketcher.Constraint("Coincident", 26, 2, 27, 1),
    Sketcher.Constraint("Coincident", 27, 2, 24, 1),
    Sketcher.Constraint("Coincident", 28, 2, 29, 1),
    Sketcher.Constraint("Coincident", 29, 2, 30, 1),
    Sketcher.Constraint("Coincident", 30, 2, 31, 1),
    Sketcher.Constraint("Coincident", 31, 2, 28, 1),
    Sketcher.Constraint("Coincident", 32, 2, 33, 1),
    Sketcher.Constraint("Coincident", 33, 2, 34, 1),
    Sketcher.Constraint("Coincident", 34, 2, 35, 1),
    Sketcher.Constraint("Coincident", 35, 2, 32, 1),
    Sketcher.Constraint("Coincident", 36, 2, 37, 1),
    Sketcher.Constraint("Coincident", 37, 2, 38, 1),
    Sketcher.Constraint("Coincident", 38, 2, 39, 1),
    Sketcher.Constraint("Coincident", 39, 2, 36, 1),
    Sketcher.Constraint("Coincident", 40, 2, 41, 1),
    Sketcher.Constraint("Coincident", 41, 2, 42, 1),
    Sketcher.Constraint("Coincident", 42, 2, 43, 1),
    Sketcher.Constraint("Coincident", 43, 2, 40, 1),
    Sketcher.Constraint("Coincident", 44, 2, 45, 1),
    Sketcher.Constraint("Coincident", 45, 2, 46, 1),
    Sketcher.Constraint("Coincident", 46, 2, 47, 1),
    Sketcher.Constraint("Coincident", 47, 2, 44, 1),
    Sketcher.Constraint("Coincident", 48, 2, 49, 1),
    Sketcher.Constraint("Coincident", 49, 2, 50, 1),
    Sketcher.Constraint("Coincident", 50, 2, 51, 1),
    Sketcher.Constraint("Coincident", 51, 2, 48, 1),
    Sketcher.Constraint("Coincident", 52, 2, 53, 1),
    Sketcher.Constraint("Coincident", 53, 2, 54, 1),
    Sketcher.Constraint("Coincident", 54, 2, 55, 1),
    Sketcher.Constraint("Coincident", 55, 2, 52, 1),
    Sketcher.Constraint("Coincident", 56, 2, 57, 1),
    Sketcher.Constraint("Coincident", 57, 2, 58, 1),
    Sketcher.Constraint("Coincident", 58, 2, 59, 1),
    Sketcher.Constraint("Coincident", 59, 2, 56, 1),
    Sketcher.Constraint("Coincident", 60, 2, 61, 1),
    Sketcher.Constraint("Coincident", 61, 2, 62, 1),
    Sketcher.Constraint("Coincident", 62, 2, 63, 1),
    Sketcher.Constraint("Coincident", 63, 2, 60, 1),
    Sketcher.Constraint("Vertical", 0),
    Sketcher.Constraint("Horizontal", 1),
    Sketcher.Constraint("Vertical", 2),
    Sketcher.Constraint("Horizontal", 3),
    Sketcher.Constraint("Vertical", 4),
    Sketcher.Constraint("Horizontal", 5),
    Sketcher.Constraint("Vertical", 6),
    Sketcher.Constraint("Horizontal", 7),
    Sketcher.Constraint("Vertical", 8),
    Sketcher.Constraint("Horizontal", 9),
    Sketcher.Constraint("Vertical", 10),
    Sketcher.Constraint("Horizontal", 11),
    Sketcher.Constraint("Vertical", 12),
    Sketcher.Constraint("Horizontal", 13),
    Sketcher.Constraint("Vertical", 14),
    Sketcher.Constraint("Horizontal", 15),
    Sketcher.Constraint("Vertical", 16),
    Sketcher.Constraint("Horizontal", 17),
    Sketcher.Constraint("Vertical", 18),
    Sketcher.Constraint("Horizontal", 19),
    Sketcher.Constraint("Vertical", 20),
    Sketcher.Constraint("Horizontal", 21),
    Sketcher.Constraint("Vertical", 22),
    Sketcher.Constraint("Horizontal", 23),
    Sketcher.Constraint("Vertical", 24),
    Sketcher.Constraint("Horizontal", 25),
    Sketcher.Constraint("Vertical", 26),
    Sketcher.Constraint("Horizontal", 27),
    Sketcher.Constraint("Vertical", 28),
    Sketcher.Constraint("Horizontal", 29),
    Sketcher.Constraint("Vertical", 30),
    Sketcher.Constraint("Horizontal", 31),
    Sketcher.Constraint("Vertical", 32),
    Sketcher.Constraint("Horizontal", 33),
    Sketcher.Constraint("Vertical", 34),
    Sketcher.Constraint("Horizontal", 35),
    Sketcher.Constraint("Vertical", 36),
    Sketcher.Constraint("Horizontal", 37),
    Sketcher.Constraint("Vertical", 38),
    Sketcher.Constraint("Horizontal", 39),
    Sketcher.Constraint("Vertical", 40),
    Sketcher.Constraint("Horizontal", 41),
    Sketcher.Constraint("Vertical", 42),
    Sketcher.Constraint("Horizontal", 43),
    Sketcher.Constraint("Vertical", 44),
    Sketcher.Constraint("Horizontal", 45),
    Sketcher.Constraint("Vertical", 46),
    Sketcher.Constraint("Horizontal", 47),
    Sketcher.Constraint("Vertical", 48),
    Sketcher.Constraint("Horizontal", 49),
    Sketcher.Constraint("Vertical", 50),
    Sketcher.Constraint("Horizontal", 51),
    Sketcher.Constraint("Vertical", 52),
    Sketcher.Constraint("Horizontal", 53),
    Sketcher.Constraint("Vertical", 54),
    Sketcher.Constraint("Horizontal", 55),
    Sketcher.Constraint("Vertical", 56),
    Sketcher.Constraint("Horizontal", 57),
    Sketcher.Constraint("Vertical", 58),
    Sketcher.Constraint("Horizontal", 59),
    Sketcher.Constraint("Vertical", 60),
    Sketcher.Constraint("Horizontal", 61),
    Sketcher.Constraint("Vertical", 62),
    Sketcher.Constraint("Horizontal", 63),
    Sketcher.Constraint("Vertical", 3, 2, 4, 2),
    Sketcher.Constraint("Vertical", 2, 2, 5, 2),
    Sketcher.Constraint("Vertical", 7, 2, 8, 2),
    Sketcher.Constraint("Vertical", 6, 2, 9, 2),
    Sketcher.Constraint("Vertical", 11, 2, 12, 2),
    Sketcher.Constraint("Vertical", 10, 2, 13, 2),
    Sketcher.Constraint("Vertical", 15, 2, 16, 2),
    Sketcher.Constraint("Vertical", 14, 2, 17, 2),
    Sketcher.Constraint("Vertical", 19, 2, 20, 2),
    Sketcher.Constraint("Vertical", 18, 2, 21, 2),
    Sketcher.Constraint("Vertical", 23, 2, 24, 2),
    Sketcher.Constraint("Vertical", 22, 2, 25, 2),
    Sketcher.Constraint("Vertical", 27, 2, 28, 2),
    Sketcher.Constraint("Vertical", 26, 2, 29, 2),
    Sketcher.Constraint("Vertical", 31, 2, 32, 2),
    Sketcher.Constraint("Vertical", 30, 2, 33, 2),
    Sketcher.Constraint("Vertical", 35, 2, 36, 2),
    Sketcher.Constraint("Vertical", 34, 2, 37, 2),
    Sketcher.Constraint("Vertical", 39, 2, 40, 2),
    Sketcher.Constraint("Vertical", 38, 2, 41, 2),
    Sketcher.Constraint("Vertical", 43, 2, 44, 2),
    Sketcher.Constraint("Vertical", 42, 2, 45, 2),
    Sketcher.Constraint("Vertical", 47, 2, 48, 2),
    Sketcher.Constraint("Vertical", 46, 2, 49, 2),
    Sketcher.Constraint("Vertical", 51, 2, 52, 2),
    Sketcher.Constraint("Vertical", 50, 2, 53, 2),
    Sketcher.Constraint("Vertical", 55, 2, 56, 2),
    Sketcher.Constraint("Vertical", 54, 2, 57, 2),
    Sketcher.Constraint("Vertical", 59, 2, 60, 2),
    Sketcher.Constraint("Vertical", 58, 2, 61, 2),
    Sketcher.Constraint("Equal", 2, 4),
    Sketcher.Constraint("Equal", 6, 8),
    Sketcher.Constraint("Equal", 10, 12),
    Sketcher.Constraint("Equal", 14, 16),
    Sketcher.Constraint("Equal", 18, 20),
    Sketcher.Constraint("Equal", 22, 24),
    Sketcher.Constraint("Equal", 26, 28),
    Sketcher.Constraint("Equal", 30, 32),
    Sketcher.Constraint("Equal", 34, 36),
    Sketcher.Constraint("Equal", 38, 40),
    Sketcher.Constraint("Equal", 42, 44),
    Sketcher.Constraint("Equal", 46, 48),
    Sketcher.Constraint("Equal", 50, 52),
    Sketcher.Constraint("Equal", 54, 56),
    Sketcher.Constraint("Equal", 58, 60),
    Sketcher.Constraint("DistanceX", 1, 1, 1, 2, Q("2.770175 mm")),
    Sketcher.Constraint("DistanceY", 0, 2, 0, 1, Q("1.321206 mm")),
    Sketcher.Constraint("DistanceX", -1, 1, 0, 2, Q("17.537913 mm")),
    Sketcher.Constraint("DistanceY", -1, 1, 0, 2, Q("43.789397 mm")),
    Sketcher.Constraint("DistanceY", -1, 1, 4, 2, Q("42.265397 mm")),
    Sketcher.Constraint("DistanceY", -1, 1, 8, 2, Q("40.741397 mm")),
    Sketcher.Constraint("DistanceY", -1, 1, 12, 2, Q("39.217397 mm")),
    Sketcher.Constraint("DistanceY", -1, 1, 16, 2, Q("36.804397 mm")),
    Sketcher.Constraint("DistanceY", -1, 1, 20, 2, Q("35.280397 mm")),
    Sketcher.Constraint("DistanceY", -1, 1, 24, 2, Q("33.756397 mm")),
    Sketcher.Constraint("DistanceY", -1, 1, 28, 2, Q("32.232397 mm")),
    Sketcher.Constraint("DistanceY", -1, 1, 32, 2, Q("29.819397 mm")),
    Sketcher.Constraint("DistanceY", -1, 1, 36, 2, Q("18.262397 mm")),
    Sketcher.Constraint("DistanceY", -1, 1, 40, 2, Q("19.786397 mm")),
    Sketcher.Constraint("DistanceY", -1, 1, 44, 2, Q("21.310397 mm")),
    Sketcher.Constraint("DistanceY", -1, 1, 48, 2, Q("22.961397 mm")),
    Sketcher.Constraint("DistanceY", -1, 1, 52, 2, Q("25.247397 mm")),
    Sketcher.Constraint("DistanceY", -1, 1, 56, 2, Q("26.771397 mm")),
    Sketcher.Constraint("DistanceY", -1, 1, 60, 2, Q("28.295397 mm")),
])
pad11 = body.newObject("PartDesign::Pad", "Pad010")
pad11.Profile = sketch12
pad11.Length = 1

sketch13 = body.newObject("Sketcher::SketchObject", "Sketch012")
sketch13.AttachmentSupport = (doc.getObject("XY_Plane"), [""])
sketch13.MapMode = "FlatFace"
sketch13.AttachmentOffset = App.Placement(Vector(0, 0, 1.6), App.Rotation())
sketch13.addGeometry([
    Part.LineSegment(Vector(24, 45, 0), Vector(24, 40, 0)),
    Part.LineSegment(Vector(24, 40, 0), Vector(29, 40, 0)),
    Part.LineSegment(Vector(29, 40, 0), Vector(29, 45, 0)),
    Part.LineSegment(Vector(29, 45, 0), Vector(24, 45, 0)),
    Part.LineSegment(Vector(24, 38, 0), Vector(24, 33, 0)),
    Part.LineSegment(Vector(24, 33, 0), Vector(29, 33, 0)),
    Part.LineSegment(Vector(29, 33, 0), Vector(29, 38, 0)),
    Part.LineSegment(Vector(29, 38, 0), Vector(24, 38, 0)),
    Part.LineSegment(Vector(24, 31, 0), Vector(24, 26, 0)),
    Part.LineSegment(Vector(24, 26, 0), Vector(29, 26, 0)),
    Part.LineSegment(Vector(29, 26, 0), Vector(29, 31, 0)),
    Part.LineSegment(Vector(29, 31, 0), Vector(24, 31, 0)),
    Part.LineSegment(Vector(24, 24, 0), Vector(24, 19, 0)),
    Part.LineSegment(Vector(24, 19, 0), Vector(29, 19, 0)),
    Part.LineSegment(Vector(29, 19, 0), Vector(29, 24, 0)),
    Part.LineSegment(Vector(29, 24, 0), Vector(24, 24, 0)),
], False)
sketch13.addConstraint([
    Sketcher.Constraint("Coincident", 0, 2, 1, 1),
    Sketcher.Constraint("Coincident", 1, 2, 2, 1),
    Sketcher.Constraint("Coincident", 2, 2, 3, 1),
    Sketcher.Constraint("Coincident", 3, 2, 0, 1),
    Sketcher.Constraint("Coincident", 4, 2, 5, 1),
    Sketcher.Constraint("Coincident", 5, 2, 6, 1),
    Sketcher.Constraint("Coincident", 6, 2, 7, 1),
    Sketcher.Constraint("Coincident", 7, 2, 4, 1),
    Sketcher.Constraint("Coincident", 8, 2, 9, 1),
    Sketcher.Constraint("Coincident", 9, 2, 10, 1),
    Sketcher.Constraint("Coincident", 10, 2, 11, 1),
    Sketcher.Constraint("Coincident", 11, 2, 8, 1),
    Sketcher.Constraint("Coincident", 12, 2, 13, 1),
    Sketcher.Constraint("Coincident", 13, 2, 14, 1),
    Sketcher.Constraint("Coincident", 14, 2, 15, 1),
    Sketcher.Constraint("Coincident", 15, 2, 12, 1),
    Sketcher.Constraint("Vertical", 0),
    Sketcher.Constraint("Horizontal", 1),
    Sketcher.Constraint("Vertical", 2),
    Sketcher.Constraint("Horizontal", 3),
    Sketcher.Constraint("Vertical", 4),
    Sketcher.Constraint("Horizontal", 5),
    Sketcher.Constraint("Vertical", 6),
    Sketcher.Constraint("Horizontal", 7),
    Sketcher.Constraint("Vertical", 8),
    Sketcher.Constraint("Horizontal", 9),
    Sketcher.Constraint("Vertical", 10),
    Sketcher.Constraint("Horizontal", 11),
    Sketcher.Constraint("Vertical", 12),
    Sketcher.Constraint("Horizontal", 13),
    Sketcher.Constraint("Vertical", 14),
    Sketcher.Constraint("Horizontal", 15),
    Sketcher.Constraint("Vertical", 3, 2, 4, 2),
    Sketcher.Constraint("Vertical", 2, 2, 5, 2),
    Sketcher.Constraint("Vertical", 7, 2, 8, 2),
    Sketcher.Constraint("Vertical", 6, 2, 9, 2),
    Sketcher.Constraint("Vertical", 11, 2, 12, 2),
    Sketcher.Constraint("Vertical", 10, 2, 13, 2),
    Sketcher.Constraint("Equal", 15, 0),
    Sketcher.Constraint("Equal", 2, 4),
    Sketcher.Constraint("Equal", 6, 8),
    Sketcher.Constraint("Equal", 10, 12),
    Sketcher.Constraint("DistanceY", 8, 2, 0, 2, Q("13.97 mm")),
    Sketcher.Constraint("DistanceY", 4, 2, 0, 2, Q("6.985 mm")),
    Sketcher.Constraint("DistanceY", 12, 2, 8, 2, Q("6.858 mm")),
    Sketcher.Constraint("DistanceX", 1, 1, 1, 2, Q("5.052416 mm")),
    Sketcher.Constraint("DistanceX", -1, 1, 0, 2, Q("23.889792 mm")),
    Sketcher.Constraint("DistanceY", -1, 1, 0, 2, Q("40.018792 mm")),
])
pad12 = body.newObject("PartDesign::Pad", "Pad011")
pad12.Profile = sketch13
pad12.Length = 4

doc.recompute()
